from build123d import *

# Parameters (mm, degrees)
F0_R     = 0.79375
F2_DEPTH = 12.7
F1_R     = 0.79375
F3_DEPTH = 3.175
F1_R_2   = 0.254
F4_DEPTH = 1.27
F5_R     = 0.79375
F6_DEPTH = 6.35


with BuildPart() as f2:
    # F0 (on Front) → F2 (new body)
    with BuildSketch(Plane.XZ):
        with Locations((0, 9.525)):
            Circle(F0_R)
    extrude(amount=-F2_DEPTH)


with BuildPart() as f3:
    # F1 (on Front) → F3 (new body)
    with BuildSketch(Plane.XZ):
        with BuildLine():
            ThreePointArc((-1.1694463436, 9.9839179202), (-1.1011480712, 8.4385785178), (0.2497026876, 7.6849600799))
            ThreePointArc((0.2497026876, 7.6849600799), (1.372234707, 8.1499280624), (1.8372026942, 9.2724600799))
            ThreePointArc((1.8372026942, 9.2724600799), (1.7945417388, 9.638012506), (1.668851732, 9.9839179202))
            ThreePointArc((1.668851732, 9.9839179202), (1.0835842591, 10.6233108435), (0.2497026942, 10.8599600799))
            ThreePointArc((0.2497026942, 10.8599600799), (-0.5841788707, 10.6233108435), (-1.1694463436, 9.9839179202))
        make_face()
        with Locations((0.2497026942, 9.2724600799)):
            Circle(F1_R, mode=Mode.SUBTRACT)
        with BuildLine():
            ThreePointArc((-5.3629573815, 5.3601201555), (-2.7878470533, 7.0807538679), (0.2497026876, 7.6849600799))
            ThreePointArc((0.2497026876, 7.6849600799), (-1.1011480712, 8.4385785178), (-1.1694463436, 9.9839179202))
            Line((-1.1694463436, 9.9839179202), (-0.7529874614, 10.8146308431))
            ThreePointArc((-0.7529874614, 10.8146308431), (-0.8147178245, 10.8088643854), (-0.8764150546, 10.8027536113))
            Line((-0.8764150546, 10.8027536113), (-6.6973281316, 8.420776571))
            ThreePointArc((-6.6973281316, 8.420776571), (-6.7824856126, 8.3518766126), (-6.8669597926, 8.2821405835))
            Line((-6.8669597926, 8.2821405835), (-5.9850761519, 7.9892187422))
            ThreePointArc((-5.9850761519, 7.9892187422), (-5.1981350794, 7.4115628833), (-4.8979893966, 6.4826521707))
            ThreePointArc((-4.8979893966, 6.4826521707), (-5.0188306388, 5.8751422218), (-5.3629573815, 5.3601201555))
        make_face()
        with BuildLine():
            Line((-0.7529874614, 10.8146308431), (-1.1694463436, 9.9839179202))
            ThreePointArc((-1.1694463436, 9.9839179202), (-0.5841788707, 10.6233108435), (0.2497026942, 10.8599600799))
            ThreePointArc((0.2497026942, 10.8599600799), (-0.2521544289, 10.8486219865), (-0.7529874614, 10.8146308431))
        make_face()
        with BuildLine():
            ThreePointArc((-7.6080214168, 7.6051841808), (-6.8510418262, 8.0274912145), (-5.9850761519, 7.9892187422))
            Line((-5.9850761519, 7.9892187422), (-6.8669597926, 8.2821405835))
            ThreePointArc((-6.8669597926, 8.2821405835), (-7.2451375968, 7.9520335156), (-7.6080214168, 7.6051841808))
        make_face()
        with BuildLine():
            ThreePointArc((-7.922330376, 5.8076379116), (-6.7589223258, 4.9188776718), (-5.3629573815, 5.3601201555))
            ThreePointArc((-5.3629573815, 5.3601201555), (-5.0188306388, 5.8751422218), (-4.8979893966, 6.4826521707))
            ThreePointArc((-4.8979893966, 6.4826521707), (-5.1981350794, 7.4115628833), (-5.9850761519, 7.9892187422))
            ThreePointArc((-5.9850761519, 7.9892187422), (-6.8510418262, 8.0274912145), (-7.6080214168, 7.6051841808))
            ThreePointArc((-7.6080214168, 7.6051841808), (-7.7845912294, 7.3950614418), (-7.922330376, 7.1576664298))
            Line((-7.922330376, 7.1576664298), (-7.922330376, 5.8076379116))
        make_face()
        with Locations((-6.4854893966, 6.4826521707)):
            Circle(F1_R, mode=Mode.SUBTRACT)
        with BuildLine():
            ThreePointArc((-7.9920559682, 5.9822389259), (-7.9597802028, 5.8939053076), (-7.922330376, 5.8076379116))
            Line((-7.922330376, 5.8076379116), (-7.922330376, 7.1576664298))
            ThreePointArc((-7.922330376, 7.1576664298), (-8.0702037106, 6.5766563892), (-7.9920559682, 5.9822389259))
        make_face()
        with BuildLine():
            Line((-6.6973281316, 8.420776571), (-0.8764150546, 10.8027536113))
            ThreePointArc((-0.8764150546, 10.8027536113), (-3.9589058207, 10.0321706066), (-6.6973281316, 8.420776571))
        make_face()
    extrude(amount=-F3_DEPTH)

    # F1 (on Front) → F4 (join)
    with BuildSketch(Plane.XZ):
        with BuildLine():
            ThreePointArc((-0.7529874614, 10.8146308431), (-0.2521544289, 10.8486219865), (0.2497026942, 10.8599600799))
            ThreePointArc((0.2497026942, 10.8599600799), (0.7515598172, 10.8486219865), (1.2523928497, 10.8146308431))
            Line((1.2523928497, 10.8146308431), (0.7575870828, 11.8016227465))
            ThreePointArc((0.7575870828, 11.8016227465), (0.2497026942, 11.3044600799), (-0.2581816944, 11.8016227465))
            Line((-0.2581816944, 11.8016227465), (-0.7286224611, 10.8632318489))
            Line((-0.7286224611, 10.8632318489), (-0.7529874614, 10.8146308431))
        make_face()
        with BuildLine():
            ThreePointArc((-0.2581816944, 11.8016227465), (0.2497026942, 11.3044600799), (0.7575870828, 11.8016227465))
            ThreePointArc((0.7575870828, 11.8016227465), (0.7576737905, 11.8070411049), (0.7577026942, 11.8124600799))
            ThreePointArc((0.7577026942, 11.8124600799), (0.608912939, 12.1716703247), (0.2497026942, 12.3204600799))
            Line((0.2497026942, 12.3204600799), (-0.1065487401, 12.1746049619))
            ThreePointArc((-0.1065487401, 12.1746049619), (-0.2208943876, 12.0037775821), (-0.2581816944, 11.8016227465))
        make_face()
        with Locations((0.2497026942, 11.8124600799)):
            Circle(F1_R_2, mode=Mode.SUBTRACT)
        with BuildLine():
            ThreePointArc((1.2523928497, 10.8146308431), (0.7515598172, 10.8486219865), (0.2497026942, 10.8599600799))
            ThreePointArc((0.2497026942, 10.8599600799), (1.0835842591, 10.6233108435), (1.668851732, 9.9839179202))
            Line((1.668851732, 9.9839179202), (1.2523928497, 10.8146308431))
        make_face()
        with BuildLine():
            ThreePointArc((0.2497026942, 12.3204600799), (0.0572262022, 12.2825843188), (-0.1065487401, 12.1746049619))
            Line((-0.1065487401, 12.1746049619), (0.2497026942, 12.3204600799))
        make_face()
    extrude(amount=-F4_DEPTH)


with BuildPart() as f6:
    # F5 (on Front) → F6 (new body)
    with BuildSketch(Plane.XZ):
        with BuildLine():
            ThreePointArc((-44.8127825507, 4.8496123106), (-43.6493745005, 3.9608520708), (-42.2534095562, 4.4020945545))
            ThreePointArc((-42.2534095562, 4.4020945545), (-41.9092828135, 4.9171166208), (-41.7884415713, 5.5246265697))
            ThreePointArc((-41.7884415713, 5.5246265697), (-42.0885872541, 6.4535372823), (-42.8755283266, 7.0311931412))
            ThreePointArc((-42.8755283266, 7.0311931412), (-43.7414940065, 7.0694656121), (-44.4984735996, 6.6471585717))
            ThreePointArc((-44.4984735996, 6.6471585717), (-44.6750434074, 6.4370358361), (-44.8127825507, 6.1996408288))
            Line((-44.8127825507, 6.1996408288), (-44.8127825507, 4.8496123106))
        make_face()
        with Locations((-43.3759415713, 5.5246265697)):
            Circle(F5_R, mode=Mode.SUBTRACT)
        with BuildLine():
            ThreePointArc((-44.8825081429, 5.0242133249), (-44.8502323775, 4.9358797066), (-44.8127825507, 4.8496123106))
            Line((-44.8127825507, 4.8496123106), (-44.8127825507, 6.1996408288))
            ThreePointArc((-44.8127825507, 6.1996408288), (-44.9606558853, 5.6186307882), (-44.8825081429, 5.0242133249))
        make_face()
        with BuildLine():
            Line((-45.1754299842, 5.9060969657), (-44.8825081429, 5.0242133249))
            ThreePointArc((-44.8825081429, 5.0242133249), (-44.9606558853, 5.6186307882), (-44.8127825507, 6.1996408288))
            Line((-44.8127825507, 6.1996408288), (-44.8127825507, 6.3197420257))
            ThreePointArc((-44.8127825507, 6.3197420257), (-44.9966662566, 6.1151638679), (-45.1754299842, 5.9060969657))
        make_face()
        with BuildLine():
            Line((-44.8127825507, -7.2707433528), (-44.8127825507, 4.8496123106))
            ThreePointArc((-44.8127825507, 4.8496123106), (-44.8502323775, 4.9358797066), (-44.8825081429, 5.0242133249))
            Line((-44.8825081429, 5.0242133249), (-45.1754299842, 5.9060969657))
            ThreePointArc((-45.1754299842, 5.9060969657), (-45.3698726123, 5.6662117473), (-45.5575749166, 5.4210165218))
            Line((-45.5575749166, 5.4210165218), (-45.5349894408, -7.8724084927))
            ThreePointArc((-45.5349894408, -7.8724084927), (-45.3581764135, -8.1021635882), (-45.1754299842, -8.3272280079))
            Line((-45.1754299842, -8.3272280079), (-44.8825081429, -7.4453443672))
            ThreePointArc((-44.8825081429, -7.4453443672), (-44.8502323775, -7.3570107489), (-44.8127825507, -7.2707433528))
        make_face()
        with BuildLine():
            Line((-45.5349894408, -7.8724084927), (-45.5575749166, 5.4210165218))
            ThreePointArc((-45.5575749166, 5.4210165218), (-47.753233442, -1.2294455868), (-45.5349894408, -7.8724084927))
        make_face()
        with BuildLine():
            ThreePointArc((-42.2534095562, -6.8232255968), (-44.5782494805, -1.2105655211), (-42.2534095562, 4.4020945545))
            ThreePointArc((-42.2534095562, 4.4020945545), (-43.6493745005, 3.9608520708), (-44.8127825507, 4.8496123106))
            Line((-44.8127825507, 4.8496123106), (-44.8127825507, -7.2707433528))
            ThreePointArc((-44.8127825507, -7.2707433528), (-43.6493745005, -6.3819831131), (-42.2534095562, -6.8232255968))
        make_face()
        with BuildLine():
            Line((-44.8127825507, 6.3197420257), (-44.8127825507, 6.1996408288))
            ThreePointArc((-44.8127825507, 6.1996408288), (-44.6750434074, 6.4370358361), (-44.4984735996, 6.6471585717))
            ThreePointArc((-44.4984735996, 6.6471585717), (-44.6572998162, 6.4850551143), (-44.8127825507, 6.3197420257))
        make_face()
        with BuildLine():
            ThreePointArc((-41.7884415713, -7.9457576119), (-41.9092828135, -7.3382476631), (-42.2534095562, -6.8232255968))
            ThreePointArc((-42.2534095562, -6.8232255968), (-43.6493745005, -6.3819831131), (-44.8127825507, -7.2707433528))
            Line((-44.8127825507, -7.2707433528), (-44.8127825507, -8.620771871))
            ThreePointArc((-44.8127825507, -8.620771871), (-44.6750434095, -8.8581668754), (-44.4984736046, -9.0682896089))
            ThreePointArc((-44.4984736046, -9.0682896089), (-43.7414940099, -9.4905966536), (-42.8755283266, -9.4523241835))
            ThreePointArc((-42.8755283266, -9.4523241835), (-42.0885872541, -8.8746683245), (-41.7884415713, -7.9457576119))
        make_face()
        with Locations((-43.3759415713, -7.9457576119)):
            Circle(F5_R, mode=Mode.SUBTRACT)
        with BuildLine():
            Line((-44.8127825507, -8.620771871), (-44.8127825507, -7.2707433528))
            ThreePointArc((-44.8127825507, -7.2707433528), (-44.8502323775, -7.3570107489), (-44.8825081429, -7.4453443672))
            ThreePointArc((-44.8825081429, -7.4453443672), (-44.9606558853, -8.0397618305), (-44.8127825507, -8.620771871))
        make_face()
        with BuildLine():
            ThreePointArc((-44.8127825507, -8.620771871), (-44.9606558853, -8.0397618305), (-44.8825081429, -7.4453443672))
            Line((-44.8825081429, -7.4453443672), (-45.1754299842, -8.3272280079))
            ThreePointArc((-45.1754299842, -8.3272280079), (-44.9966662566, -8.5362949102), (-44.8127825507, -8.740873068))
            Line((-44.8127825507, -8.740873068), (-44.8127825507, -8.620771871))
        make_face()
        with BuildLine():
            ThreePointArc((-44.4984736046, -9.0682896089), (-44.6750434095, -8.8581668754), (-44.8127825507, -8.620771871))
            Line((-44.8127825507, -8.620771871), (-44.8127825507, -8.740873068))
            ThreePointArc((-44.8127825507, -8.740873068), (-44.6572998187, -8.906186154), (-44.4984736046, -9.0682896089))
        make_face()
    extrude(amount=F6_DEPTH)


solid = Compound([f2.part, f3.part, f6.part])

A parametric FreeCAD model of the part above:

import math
import FreeCAD as App
import Part
import Sketcher

V = App.Vector
Q = App.Units.Quantity

doc = App.newDocument("Part")
body = doc.addObject("PartDesign::Body", "Body")

sketch1 = body.newObject("Sketcher::SketchObject", "Sketch")
sketch1.AttachmentSupport = (doc.getObject("XZ_Plane"), [""])
sketch1.MapMode = "FlatFace"
sketch1.addGeometry(Part.Circle(V(0, 9.5, 0), V(0, 0, 1), 0.8), False)
sketch1.addConstraint(Sketcher.Constraint("PointOnObject", 0, 3, -2))
sketch1.addConstraint(Sketcher.Constraint("Diameter", 0, Q("0.0625 in")))
sketch1.addConstraint(Sketcher.Constraint("DistanceY", -1, 1, 0, 3, Q("0.375 in")))
pad1 = body.newObject("PartDesign::Pad", "Pad")
pad1.Profile = sketch1
pad1.Length = Q("0.5 in")
pad1.Reversed = True
body2 = doc.addObject("PartDesign::Body", "Body001")

sketch2 = body2.newObject("Sketcher::SketchObject", "Sketch001")
sketch2.AttachmentSupport = (doc.getObject("XZ_Plane001"), [""])
sketch2.MapMode = "FlatFace"
sketch2.addGeometry(Part.ArcOfCircle(Part.Circle(V(0.25, -0.25, 0), V(0, 0, 1), 11.11), math.radians(95.18), math.radians(95.82)), False)
sketch2.addGeometry(Part.ArcOfCircle(Part.Circle(V(0.25, -0.25, 0), V(0, 0, 1), 11.11), math.radians(96), math.radians(129)), False)
sketch2.addGeometry(Part.ArcOfCircle(Part.Circle(V(0.25, -0.25, 0), V(0, 0, 1), 11.11), math.radians(128.69), math.radians(129.82)), False)
sketch2.addGeometry(Part.ArcOfCircle(Part.Circle(V(0.25, -0.25, 0), V(0, 0, 1), 11.11), math.radians(129.82), math.radians(135)), False)
sketch2.addGeometry(Part.ArcOfCircle(Part.Circle(V(-6.49, 6.48, 0), V(0, 0, 1), 1.59), math.radians(135), math.radians(154.84)), False)
sketch2.addGeometry(Part.ArcOfCircle(Part.Circle(V(-6.49, 6.48, 0), V(0, 0, 1), 1.59), math.radians(155), math.radians(198)), False)
sketch2.addGeometry(Part.ArcOfCircle(Part.Circle(V(-6.49, 6.48, 0), V(0, 0, 1), 1.59), math.radians(-161.63), math.radians(-154.84)), False)
sketch2.addGeometry(Part.ArcOfCircle(Part.Circle(V(-6.49, 6.48, 0), V(0, 0, 1), 1.59), math.radians(-155), math.radians(-45)), False)
sketch2.addGeometry(Part.ArcOfCircle(Part.Circle(V(0.25, -0.25, 0), V(0, 0, 1), 7.94), math.radians(90), math.radians(135)), False)
sketch2.addGeometry(Part.ArcOfCircle(Part.Circle(V(0.25, 9.27, 0), V(0, 0, 1), 1.59), math.radians(-90), math.radians(0)), False)
sketch2.addGeometry(Part.ArcOfCircle(Part.Circle(V(0.25, 9.27, 0), V(0, 0, 1), 1.59), math.radians(0), math.radians(27)), False)
sketch2.addGeometry(Part.ArcOfCircle(Part.Circle(V(0.25, 9.27, 0), V(0, 0, 1), 1.59), math.radians(27), math.radians(90)), False)
sketch2.addGeometry(Part.ArcOfCircle(Part.Circle(V(0.25, -0.25, 0), V(0, 0, 1), 11.11), math.radians(90), math.radians(95.18)), False)
sketch2.addGeometry(Part.Circle(V(-6.49, 6.48, 0), V(0, 0, 1), 0.79), False)
sketch2.addGeometry(Part.Circle(V(0.25, 9.27, 0), V(0, 0, 1), 0.79), False)
sketch2.addConstraint(Sketcher.Constraint("Tangent", 0, 2, 1, 1))
sketch2.addConstraint(Sketcher.Constraint("Tangent", 1, 2, 2, 1))
sketch2.addConstraint(Sketcher.Constraint("Tangent", 2, 2, 3, 1))
sketch2.addConstraint(Sketcher.Constraint("Tangent", 3, 2, 4, 1))
sketch2.addConstraint(Sketcher.Constraint("Tangent", 4, 2, 5, 1))
sketch2.addConstraint(Sketcher.Constraint("Tangent", 5, 2, 6, 1))
sketch2.addConstraint(Sketcher.Constraint("Tangent", 6, 2, 7, 1))
sketch2.addConstraint(Sketcher.Constraint("Tangent", 7, 2, 8, 2))
sketch2.addConstraint(Sketcher.Constraint("Tangent", 8, 1, 9, 1))
sketch2.addConstraint(Sketcher.Constraint("Tangent", 9, 2, 10, 1))
sketch2.addConstraint(Sketcher.Constraint("Tangent", 10, 2, 11, 1))
sketch2.addConstraint(Sketcher.Constraint("Tangent", 11, 2, 12, 1))
sketch2.addConstraint(Sketcher.Constraint("Tangent", 12, 2, 0, 1))
sketch2.addConstraint(Sketcher.Constraint("Coincident", 2, 3, 0, 3))
sketch2.addConstraint(Sketcher.Constraint("Coincident", 6, 3, 4, 3))
sketch2.addConstraint(Sketcher.Constraint("Coincident", 8, 3, 0, 3))
sketch2.addConstraint(Sketcher.Constraint("Coincident", 11, 3, 9, 3))
sketch2.addConstraint(Sketcher.Constraint("Coincident", 13, 3, 4, 3))
sketch2.addConstraint(Sketcher.Constraint("Coincident", 14, 3, 9, 3))
sketch2.addConstraint(Sketcher.Constraint("Equal", 2, 3))
sketch2.addConstraint(Sketcher.Constraint("Equal", 6, 7))
sketch2.addConstraint(Sketcher.Constraint("Equal", 3, 12))
sketch2.addConstraint(Sketcher.Constraint("Equal", 13, 14))
sketch2.addConstraint(Sketcher.Constraint("Horizontal", 14, 3, 9, 2))
sketch2.addConstraint(Sketcher.Constraint("Vertical", 8, 3, 9, 3))
sketch2.addConstraint(Sketcher.Constraint("Vertical", 4, 2, 6, 2))
sketch2.addConstraint(Sketcher.Constraint("Diameter", 13, Q("0.0625 in")))
sketch2.addConstraint(Sketcher.Constraint("Radius", 0, Q("0.4374999 in")))
sketch2.addConstraint(Sketcher.Constraint("Radius", 4, Q("0.0625 in")))
sketch2.addConstraint(Sketcher.Constraint("DistanceY", 6, 3, 0, 2, 4.320101))
sketch2.addConstraint(Sketcher.Constraint("DistanceY", 6, 2, 5, 2, 0.174601))
sketch2.addConstraint(Sketcher.Constraint("DistanceY", 0, 3, -1, 1, 0.252538))
sketch2.addConstraint(Sketcher.Constraint("DistanceX", 4, 3, -1, 1, 6.485489))
sketch2.addConstraint(Sketcher.Constraint("DistanceX", 1, 2, -1, 1, 6.697328))
sketch2.addConstraint(Sketcher.Constraint("DistanceX", 2, 2, -1, 1, 6.86696))
sketch2.addConstraint(Sketcher.Constraint("DistanceY", -1, 1, 2, 2, 8.282141))
sketch2.addConstraint(Sketcher.Constraint("DistanceX", 4, 2, -1, 1, 7.92233))
sketch2.addConstraint(Sketcher.Constraint("DistanceX", -1, 1, 10, 2, 1.668852))
sketch2.addConstraint(Sketcher.Constraint("DistanceY", -1, 1, 12, 2, 10.814631))
pad2 = body2.newObject("PartDesign::Pad", "Pad001")
pad2.Profile = sketch2
pad2.Length = Q("0.125 in")
pad2.Reversed = True

sketch3 = body2.newObject("Sketcher::SketchObject", "Sketch002")
sketch3.AttachmentSupport = (doc.getObject("XZ_Plane001"), [""])
sketch3.MapMode = "FlatFace"
sketch3.addGeometry(Part.ArcOfCircle(Part.Circle(V(0.25, -0.253, 0), V(0, 0, 1), 11.113), math.radians(90), math.radians(95.18)), False)
sketch3.addGeometry(Part.ArcOfCircle(Part.Circle(V(0.25, 9.272, 0), V(0, 0, 1), 1.587), math.radians(27), math.radians(90)), False)
sketch3.addGeometry(Part.LineSegment(V(1.669, 9.984, 0), V(1.252, 10.815, 0)), False)
sketch3.addGeometry(Part.LineSegment(V(1.252, 10.815, 0), V(0.758, 11.802, 0)), False)
sketch3.addGeometry(Part.ArcOfCircle(Part.Circle(V(0.25, 11.812, 0), V(0, 0, 1), 0.508), math.radians(-1.22), math.radians(0)), False)
sketch3.addGeometry(Part.ArcOfCircle(Part.Circle(V(0.25, 11.812, 0), V(0, 0, 1), 0.508), math.radians(0), math.radians(90)), False)
sketch3.addGeometry(Part.ArcOfCircle(Part.Circle(V(0.25, 11.812, 0), V(0, 0, 1), 0.508), math.radians(90), math.radians(135)), False)
sketch3.addGeometry(Part.ArcOfCircle(Part.Circle(V(0.25, 11.812, 0), V(0, 0, 1), 0.508), math.radians(135), math.radians(181)), False)
sketch3.addGeometry(Part.LineSegment(V(-0.258, 11.802, 0), V(-0.729, 10.863, 0)), False)
sketch3.addGeometry(Part.LineSegment(V(-0.729, 10.863, 0), V(-0.753, 10.815, 0)), False)
sketch3.addGeometry(Part.Circle(V(0.25, 11.812, 0), V(0, 0, 1), 0.254), False)
sketch3.addConstraint(Sketcher.Constraint("Tangent", 0, 1, 1, 2))
sketch3.addConstraint(Sketcher.Constraint("Tangent", 1, 1, 2, 1))
sketch3.addConstraint(Sketcher.Constraint("Coincident", 2, 2, 3, 1))
sketch3.addConstraint(Sketcher.Constraint("Coincident", 3, 2, 4, 1))
sketch3.addConstraint(Sketcher.Constraint("Tangent", 4, 2, 5, 1))
sketch3.addConstraint(Sketcher.Constraint("Tangent", 5, 2, 6, 1))
sketch3.addConstraint(Sketcher.Constraint("Tangent", 6, 2, 7, 1))
sketch3.addConstraint(Sketcher.Constraint("Coincident", 7, 2, 8, 1))
sketch3.addConstraint(Sketcher.Constraint("Coincident", 8, 2, 9, 1))
sketch3.addConstraint(Sketcher.Constraint("Coincident", 9, 2, 0, 2))
sketch3.addConstraint(Sketcher.Constraint("Coincident", 6, 3, 4, 3))
sketch3.addConstraint(Sketcher.Constraint("Coincident", 10, 3, 4, 3))
sketch3.addConstraint(Sketcher.Constraint("Equal", 6, 7))
sketch3.addConstraint(Sketcher.Constraint("Parallel", 2, 3))
sketch3.addConstraint(Sketcher.Constraint("Parallel", 8, 9))
sketch3.addConstraint(Sketcher.Constraint("Horizontal", 10, 3, 4, 2))
sketch3.addConstraint(Sketcher.Constraint("Horizontal", 3, 2, 7, 2))
sketch3.addConstraint(Sketcher.Constraint("Horizontal", 2, 2, 9, 2))
sketch3.addConstraint(Sketcher.Constraint("Vertical", 0, 3, 1, 3))
sketch3.addConstraint(Sketcher.Constraint("Vertical", 1, 3, 4, 3))
sketch3.addConstraint(Sketcher.Constraint("Vertical", 0, 1, 5, 2))
sketch3.addConstraint(Sketcher.Constraint("Diameter", 10, Q("0.02 in")))
sketch3.addConstraint(Sketcher.Constraint("Radius", 4, Q("0.02 in")))
sketch3.addConstraint(Sketcher.Constraint("Radius", 0, Q("0.4375 in")))
sketch3.addConstraint(Sketcher.Constraint("Radius", 1, Q("0.0625 in")))
sketch3.addConstraint(Sketcher.Constraint("DistanceY", 1, 3, 4, 3, Q("0.1 in")))
sketch3.addConstraint(Sketcher.Constraint("DistanceY", 9, 2, 8, 2, 0.048601))
sketch3.addConstraint(Sketcher.Constraint("Distance", 2, 0.929259))
sketch3.addConstraint(Sketcher.Constraint("Distance", 8, 1.04971))
sketch3.addConstraint(Sketcher.Constraint("DistanceY", 0, 3, -1, 1, 0.25254))
sketch3.addConstraint(Sketcher.Constraint("DistanceX", -1, 1, 1, 1, 1.668852))
sketch3.addConstraint(Sketcher.Constraint("DistanceX", 6, 2, -1, 1, 0.106549))
pad3 = body2.newObject("PartDesign::Pad", "Pad002")
pad3.Profile = sketch3
pad3.Length = Q("0.05 in")
pad3.Reversed = True
body3 = doc.addObject("PartDesign::Body", "Body002")

sketch4 = body3.newObject("Sketcher::SketchObject", "Sketch003")
sketch4.AttachmentSupport = (doc.getObject("XZ_Plane002"), [""])
sketch4.MapMode = "FlatFace"
sketch4.addGeometry(Part.ArcOfCircle(Part.Circle(V(-43.38, 5.52, 0), V(0, 0, 1), 1.59), math.radians(-45), math.radians(0)), False)
sketch4.addGeometry(Part.ArcOfCircle(Part.Circle(V(-43.38, 5.52, 0), V(0, 0, 1), 1.59), math.radians(0), math.radians(72)), False)
sketch4.addGeometry(Part.ArcOfCircle(Part.Circle(V(-43.38, 5.52, 0), V(0, 0, 1), 1.59), math.radians(72), math.radians(135)), False)
sketch4.addGeometry(Part.ArcOfCircle(Part.Circle(V(-36.64, -1.21, 0), V(0, 0, 1), 11.11), math.radians(135), math.radians(137.34)), False)
sketch4.addGeometry(Part.ArcOfCircle(Part.Circle(V(-36.64, -1.21, 0), V(0, 0, 1), 11.11), math.radians(137.34), math.radians(140.18)), False)
sketch4.addGeometry(Part.ArcOfCircle(Part.Circle(V(-36.64, -1.21, 0), V(0, 0, 1), 11.11), math.radians(140.18), math.radians(143.36)), False)
sketch4.addGeometry(Part.ArcOfCircle(Part.Circle(V(-36.64, -1.21, 0), V(0, 0, 1), 11.11), math.radians(143), math.radians(217)), False)
sketch4.addGeometry(Part.ArcOfCircle(Part.Circle(V(-36.64, -1.21, 0), V(0, 0, 1), 11.11), math.radians(-143.17), math.radians(-140.18)), False)
sketch4.addGeometry(Part.ArcOfCircle(Part.Circle(V(-36.64, -1.21, 0), V(0, 0, 1), 11.11), math.radians(-140.18), math.radians(-137.34)), False)
sketch4.addGeometry(Part.ArcOfCircle(Part.Circle(V(-36.64, -1.21, 0), V(0, 0, 1), 11.11), math.radians(-137.34), math.radians(-135)), False)
sketch4.addGeometry(Part.ArcOfCircle(Part.Circle(V(-43.38, -7.95, 0), V(0, 0, 1), 1.59), math.radians(-135), math.radians(-72)), False)
sketch4.addGeometry(Part.ArcOfCircle(Part.Circle(V(-43.38, -7.95, 0), V(0, 0, 1), 1.59), math.radians(-72), math.radians(0)), False)
sketch4.addGeometry(Part.ArcOfCircle(Part.Circle(V(-43.38, -7.95, 0), V(0, 0, 1), 1.59), math.radians(0), math.radians(45)), False)
sketch4.addGeometry(Part.ArcOfCircle(Part.Circle(V(-36.64, -1.21, 0), V(0, 0, 1), 7.94), math.radians(135), math.radians(225)), False)
sketch4.addGeometry(Part.Circle(V(-43.38, -7.95, 0), V(0, 0, 1), 0.79), False)
sketch4.addGeometry(Part.Circle(V(-43.38, 5.52, 0), V(0, 0, 1), 0.79), False)
sketch4.addConstraint(Sketcher.Constraint("Tangent", 0, 2, 1, 1))
sketch4.addConstraint(Sketcher.Constraint("Tangent", 1, 2, 2, 1))
sketch4.addConstraint(Sketcher.Constraint("Tangent", 2, 2, 3, 1))
sketch4.addConstraint(Sketcher.Constraint("Tangent", 3, 2, 4, 1))
sketch4.addConstraint(Sketcher.Constraint("Tangent", 4, 2, 5, 1))
sketch4.addConstraint(Sketcher.Constraint("Tangent", 5, 2, 6, 1))
sketch4.addConstraint(Sketcher.Constraint("Tangent", 6, 2, 7, 1))
sketch4.addConstraint(Sketcher.Constraint("Tangent", 7, 2, 8, 1))
sketch4.addConstraint(Sketcher.Constraint("Tangent", 8, 2, 9, 1))
sketch4.addConstraint(Sketcher.Constraint("Tangent", 9, 2, 10, 1))
sketch4.addConstraint(Sketcher.Constraint("Tangent", 10, 2, 11, 1))
sketch4.addConstraint(Sketcher.Constraint("Tangent", 11, 2, 12, 1))
sketch4.addConstraint(Sketcher.Constraint("Tangent", 12, 2, 13, 2))
sketch4.addConstraint(Sketcher.Constraint("Tangent", 13, 1, 0, 1))
sketch4.addConstraint(Sketcher.Constraint("Coincident", 2, 3, 0, 3))
sketch4.addConstraint(Sketcher.Constraint("Coincident", 5, 3, 3, 3))
sketch4.addConstraint(Sketcher.Constraint("Coincident", 7, 3, 3, 3))
sketch4.addConstraint(Sketcher.Constraint("Coincident", 9, 3, 3, 3))
sketch4.addConstraint(Sketcher.Constraint("Coincident", 12, 3, 10, 3))
sketch4.addConstraint(Sketcher.Constraint("Coincident", 13, 3, 3, 3))
sketch4.addConstraint(Sketcher.Constraint("Coincident", 14, 3, 10, 3))
sketch4.addConstraint(Sketcher.Constraint("Coincident", 15, 3, 0, 3))
sketch4.addConstraint(Sketcher.Constraint("Equal", 14, 15))
sketch4.addConstraint(Sketcher.Constraint("Horizontal", 15, 3, 0, 2))
sketch4.addConstraint(Sketcher.Constraint("Horizontal", 14, 3, 11, 2))
sketch4.addConstraint(Sketcher.Constraint("Vertical", 2, 3, 10, 3))
sketch4.addConstraint(Sketcher.Constraint("Vertical", 4, 2, 7, 2))
sketch4.addConstraint(Sketcher.Constraint("Vertical", 3, 2, 8, 2))
sketch4.addConstraint(Sketcher.Constraint("Vertical", 1, 2, 10, 2))
sketch4.addConstraint(Sketcher.Constraint("Diameter", 14, Q("0.0625 in")))
sketch4.addConstraint(Sketcher.Constraint("Radius", 0, Q("0.0625 in")))
sketch4.addConstraint(Sketcher.Constraint("Radius", 3, Q("0.4375 in")))
sketch4.addConstraint(Sketcher.Constraint("DistanceX", 5, 2, 2, 2, 1.059101))
sketch4.addConstraint(Sketcher.Constraint("DistanceX", 0, 3, -1, 1, 43.375942))
sketch4.addConstraint(Sketcher.Constraint("DistanceX", 3, 3, -1, 1, 36.640749))
sketch4.addConstraint(Sketcher.Constraint("DistanceX", 1, 2, -1, 1, 42.875528))
sketch4.addConstraint(Sketcher.Constraint("DistanceY", -1, 1, 2, 2, 6.647159))
sketch4.addConstraint(Sketcher.Constraint("DistanceX", 4, 2, -1, 1, 45.17543))
sketch4.addConstraint(Sketcher.Constraint("DistanceX", 6, 2, -1, 1, 45.534989))
sketch4.addConstraint(Sketcher.Constraint("DistanceX", 3, 2, 2, 2, 0.314309))
pad4 = body3.newObject("PartDesign::Pad", "Pad003")
pad4.Profile = sketch4
pad4.Length = Q("0.25 in")

doc.recompute()
